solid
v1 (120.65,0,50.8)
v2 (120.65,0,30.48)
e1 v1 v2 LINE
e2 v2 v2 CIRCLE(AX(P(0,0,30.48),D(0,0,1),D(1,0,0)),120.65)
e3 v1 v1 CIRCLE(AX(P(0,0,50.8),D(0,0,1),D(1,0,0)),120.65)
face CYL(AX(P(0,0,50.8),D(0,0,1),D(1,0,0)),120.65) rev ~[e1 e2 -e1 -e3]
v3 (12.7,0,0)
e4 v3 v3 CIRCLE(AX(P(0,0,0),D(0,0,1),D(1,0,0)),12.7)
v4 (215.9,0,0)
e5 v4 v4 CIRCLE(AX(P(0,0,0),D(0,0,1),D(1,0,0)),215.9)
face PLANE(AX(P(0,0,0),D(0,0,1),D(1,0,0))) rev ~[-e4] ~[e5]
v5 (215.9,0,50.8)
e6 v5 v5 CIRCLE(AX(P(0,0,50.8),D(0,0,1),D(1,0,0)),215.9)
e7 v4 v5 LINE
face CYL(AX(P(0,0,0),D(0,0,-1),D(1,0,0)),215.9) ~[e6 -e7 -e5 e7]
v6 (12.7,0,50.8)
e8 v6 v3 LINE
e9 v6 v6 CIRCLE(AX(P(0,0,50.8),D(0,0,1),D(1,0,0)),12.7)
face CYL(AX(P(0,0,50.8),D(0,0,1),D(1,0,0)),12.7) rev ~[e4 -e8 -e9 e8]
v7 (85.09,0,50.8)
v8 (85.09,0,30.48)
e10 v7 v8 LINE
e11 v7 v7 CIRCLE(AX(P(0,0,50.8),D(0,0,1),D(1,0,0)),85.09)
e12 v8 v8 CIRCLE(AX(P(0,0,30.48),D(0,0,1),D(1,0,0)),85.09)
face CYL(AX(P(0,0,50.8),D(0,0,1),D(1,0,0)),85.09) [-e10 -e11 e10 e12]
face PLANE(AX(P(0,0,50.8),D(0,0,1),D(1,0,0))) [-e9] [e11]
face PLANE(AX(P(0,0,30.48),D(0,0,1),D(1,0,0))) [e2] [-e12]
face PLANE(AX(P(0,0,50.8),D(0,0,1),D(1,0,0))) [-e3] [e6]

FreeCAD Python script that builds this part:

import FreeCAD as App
import Part
import Sketcher

V = App.Vector
Q = App.Units.Quantity

doc = App.newDocument("Part")
body = doc.addObject("PartDesign::Body", "Body")

# Sketch on XY plane
sketch1 = doc.addObject("Sketcher::SketchObject", "Sketch")
body.addObject(sketch1)
sketch1.AttachmentSupport = (doc.XY_Plane, [""])
sketch1.MapMode = "FlatFace"
sketch1.addGeometry(Part.Circle(V(0, 0, 0), V(0, 0, 1), 215.9), False)
sketch1.addConstraint([
    Sketcher.Constraint("Coincident", 0, 3, -1, 1),
    Sketcher.Constraint("Diameter", 0, Q("17 in")),
])
pad1 = doc.addObject("PartDesign::Pad", "Pad")
body.addObject(pad1)
pad1.Profile = sketch1
pad1.Length = Q("2 in")

# Sketch on XY plane
sketch2 = doc.addObject("Sketcher::SketchObject", "Sketch001")
body.addObject(sketch2)
sketch2.AttachmentSupport = (doc.XY_Plane, [""])
sketch2.MapMode = "FlatFace"
sketch2.AttachmentOffset = App.Placement(V(0, 0, 2 * 25.4), App.Rotation())
sketch2.addGeometry([
    Part.Circle(V(0, 0, 0), V(0, 0, 1), 120.65),
    Part.Circle(V(0, 0, 0), V(0, 0, 1), 85.09),
], False)
sketch2.addConstraint([
    Sketcher.Constraint("Coincident", 0, 3, -1, 1),
    Sketcher.Constraint("Coincident", 1, 3, -1, 1),
    Sketcher.Constraint("Diameter", 0, Q("9.5 in")),
    Sketcher.Constraint("Diameter", 1, Q("6.7 in")),
])
pocket1 = doc.addObject("PartDesign::Pocket", "Pocket")
body.addObject(pocket1)
pocket1.Profile = sketch2
pocket1.Length = Q("0.8 in")

# Sketch on XY plane
sketch3 = doc.addObject("Sketcher::SketchObject", "Sketch002")
body.addObject(sketch3)
sketch3.AttachmentSupport = (doc.XY_Plane, [""])
sketch3.MapMode = "FlatFace"
sketch3.AttachmentOffset = App.Placement(V(0, 0, 2 * 25.4), App.Rotation())
sketch3.addGeometry(Part.Circle(V(0, 0, 0), V(0, 0, 1), 12.7), False)
sketch3.addConstraint([
    Sketcher.Constraint("Coincident", 0, 3, -1, 1),
    Sketcher.Constraint("Diameter", 0, Q("1 in")),
])
pocket2 = doc.addObject("PartDesign::Pocket", "Pocket001")
body.addObject(pocket2)
pocket2.Profile = sketch3
pocket2.Type = "ThroughAll"

doc.recompute()
